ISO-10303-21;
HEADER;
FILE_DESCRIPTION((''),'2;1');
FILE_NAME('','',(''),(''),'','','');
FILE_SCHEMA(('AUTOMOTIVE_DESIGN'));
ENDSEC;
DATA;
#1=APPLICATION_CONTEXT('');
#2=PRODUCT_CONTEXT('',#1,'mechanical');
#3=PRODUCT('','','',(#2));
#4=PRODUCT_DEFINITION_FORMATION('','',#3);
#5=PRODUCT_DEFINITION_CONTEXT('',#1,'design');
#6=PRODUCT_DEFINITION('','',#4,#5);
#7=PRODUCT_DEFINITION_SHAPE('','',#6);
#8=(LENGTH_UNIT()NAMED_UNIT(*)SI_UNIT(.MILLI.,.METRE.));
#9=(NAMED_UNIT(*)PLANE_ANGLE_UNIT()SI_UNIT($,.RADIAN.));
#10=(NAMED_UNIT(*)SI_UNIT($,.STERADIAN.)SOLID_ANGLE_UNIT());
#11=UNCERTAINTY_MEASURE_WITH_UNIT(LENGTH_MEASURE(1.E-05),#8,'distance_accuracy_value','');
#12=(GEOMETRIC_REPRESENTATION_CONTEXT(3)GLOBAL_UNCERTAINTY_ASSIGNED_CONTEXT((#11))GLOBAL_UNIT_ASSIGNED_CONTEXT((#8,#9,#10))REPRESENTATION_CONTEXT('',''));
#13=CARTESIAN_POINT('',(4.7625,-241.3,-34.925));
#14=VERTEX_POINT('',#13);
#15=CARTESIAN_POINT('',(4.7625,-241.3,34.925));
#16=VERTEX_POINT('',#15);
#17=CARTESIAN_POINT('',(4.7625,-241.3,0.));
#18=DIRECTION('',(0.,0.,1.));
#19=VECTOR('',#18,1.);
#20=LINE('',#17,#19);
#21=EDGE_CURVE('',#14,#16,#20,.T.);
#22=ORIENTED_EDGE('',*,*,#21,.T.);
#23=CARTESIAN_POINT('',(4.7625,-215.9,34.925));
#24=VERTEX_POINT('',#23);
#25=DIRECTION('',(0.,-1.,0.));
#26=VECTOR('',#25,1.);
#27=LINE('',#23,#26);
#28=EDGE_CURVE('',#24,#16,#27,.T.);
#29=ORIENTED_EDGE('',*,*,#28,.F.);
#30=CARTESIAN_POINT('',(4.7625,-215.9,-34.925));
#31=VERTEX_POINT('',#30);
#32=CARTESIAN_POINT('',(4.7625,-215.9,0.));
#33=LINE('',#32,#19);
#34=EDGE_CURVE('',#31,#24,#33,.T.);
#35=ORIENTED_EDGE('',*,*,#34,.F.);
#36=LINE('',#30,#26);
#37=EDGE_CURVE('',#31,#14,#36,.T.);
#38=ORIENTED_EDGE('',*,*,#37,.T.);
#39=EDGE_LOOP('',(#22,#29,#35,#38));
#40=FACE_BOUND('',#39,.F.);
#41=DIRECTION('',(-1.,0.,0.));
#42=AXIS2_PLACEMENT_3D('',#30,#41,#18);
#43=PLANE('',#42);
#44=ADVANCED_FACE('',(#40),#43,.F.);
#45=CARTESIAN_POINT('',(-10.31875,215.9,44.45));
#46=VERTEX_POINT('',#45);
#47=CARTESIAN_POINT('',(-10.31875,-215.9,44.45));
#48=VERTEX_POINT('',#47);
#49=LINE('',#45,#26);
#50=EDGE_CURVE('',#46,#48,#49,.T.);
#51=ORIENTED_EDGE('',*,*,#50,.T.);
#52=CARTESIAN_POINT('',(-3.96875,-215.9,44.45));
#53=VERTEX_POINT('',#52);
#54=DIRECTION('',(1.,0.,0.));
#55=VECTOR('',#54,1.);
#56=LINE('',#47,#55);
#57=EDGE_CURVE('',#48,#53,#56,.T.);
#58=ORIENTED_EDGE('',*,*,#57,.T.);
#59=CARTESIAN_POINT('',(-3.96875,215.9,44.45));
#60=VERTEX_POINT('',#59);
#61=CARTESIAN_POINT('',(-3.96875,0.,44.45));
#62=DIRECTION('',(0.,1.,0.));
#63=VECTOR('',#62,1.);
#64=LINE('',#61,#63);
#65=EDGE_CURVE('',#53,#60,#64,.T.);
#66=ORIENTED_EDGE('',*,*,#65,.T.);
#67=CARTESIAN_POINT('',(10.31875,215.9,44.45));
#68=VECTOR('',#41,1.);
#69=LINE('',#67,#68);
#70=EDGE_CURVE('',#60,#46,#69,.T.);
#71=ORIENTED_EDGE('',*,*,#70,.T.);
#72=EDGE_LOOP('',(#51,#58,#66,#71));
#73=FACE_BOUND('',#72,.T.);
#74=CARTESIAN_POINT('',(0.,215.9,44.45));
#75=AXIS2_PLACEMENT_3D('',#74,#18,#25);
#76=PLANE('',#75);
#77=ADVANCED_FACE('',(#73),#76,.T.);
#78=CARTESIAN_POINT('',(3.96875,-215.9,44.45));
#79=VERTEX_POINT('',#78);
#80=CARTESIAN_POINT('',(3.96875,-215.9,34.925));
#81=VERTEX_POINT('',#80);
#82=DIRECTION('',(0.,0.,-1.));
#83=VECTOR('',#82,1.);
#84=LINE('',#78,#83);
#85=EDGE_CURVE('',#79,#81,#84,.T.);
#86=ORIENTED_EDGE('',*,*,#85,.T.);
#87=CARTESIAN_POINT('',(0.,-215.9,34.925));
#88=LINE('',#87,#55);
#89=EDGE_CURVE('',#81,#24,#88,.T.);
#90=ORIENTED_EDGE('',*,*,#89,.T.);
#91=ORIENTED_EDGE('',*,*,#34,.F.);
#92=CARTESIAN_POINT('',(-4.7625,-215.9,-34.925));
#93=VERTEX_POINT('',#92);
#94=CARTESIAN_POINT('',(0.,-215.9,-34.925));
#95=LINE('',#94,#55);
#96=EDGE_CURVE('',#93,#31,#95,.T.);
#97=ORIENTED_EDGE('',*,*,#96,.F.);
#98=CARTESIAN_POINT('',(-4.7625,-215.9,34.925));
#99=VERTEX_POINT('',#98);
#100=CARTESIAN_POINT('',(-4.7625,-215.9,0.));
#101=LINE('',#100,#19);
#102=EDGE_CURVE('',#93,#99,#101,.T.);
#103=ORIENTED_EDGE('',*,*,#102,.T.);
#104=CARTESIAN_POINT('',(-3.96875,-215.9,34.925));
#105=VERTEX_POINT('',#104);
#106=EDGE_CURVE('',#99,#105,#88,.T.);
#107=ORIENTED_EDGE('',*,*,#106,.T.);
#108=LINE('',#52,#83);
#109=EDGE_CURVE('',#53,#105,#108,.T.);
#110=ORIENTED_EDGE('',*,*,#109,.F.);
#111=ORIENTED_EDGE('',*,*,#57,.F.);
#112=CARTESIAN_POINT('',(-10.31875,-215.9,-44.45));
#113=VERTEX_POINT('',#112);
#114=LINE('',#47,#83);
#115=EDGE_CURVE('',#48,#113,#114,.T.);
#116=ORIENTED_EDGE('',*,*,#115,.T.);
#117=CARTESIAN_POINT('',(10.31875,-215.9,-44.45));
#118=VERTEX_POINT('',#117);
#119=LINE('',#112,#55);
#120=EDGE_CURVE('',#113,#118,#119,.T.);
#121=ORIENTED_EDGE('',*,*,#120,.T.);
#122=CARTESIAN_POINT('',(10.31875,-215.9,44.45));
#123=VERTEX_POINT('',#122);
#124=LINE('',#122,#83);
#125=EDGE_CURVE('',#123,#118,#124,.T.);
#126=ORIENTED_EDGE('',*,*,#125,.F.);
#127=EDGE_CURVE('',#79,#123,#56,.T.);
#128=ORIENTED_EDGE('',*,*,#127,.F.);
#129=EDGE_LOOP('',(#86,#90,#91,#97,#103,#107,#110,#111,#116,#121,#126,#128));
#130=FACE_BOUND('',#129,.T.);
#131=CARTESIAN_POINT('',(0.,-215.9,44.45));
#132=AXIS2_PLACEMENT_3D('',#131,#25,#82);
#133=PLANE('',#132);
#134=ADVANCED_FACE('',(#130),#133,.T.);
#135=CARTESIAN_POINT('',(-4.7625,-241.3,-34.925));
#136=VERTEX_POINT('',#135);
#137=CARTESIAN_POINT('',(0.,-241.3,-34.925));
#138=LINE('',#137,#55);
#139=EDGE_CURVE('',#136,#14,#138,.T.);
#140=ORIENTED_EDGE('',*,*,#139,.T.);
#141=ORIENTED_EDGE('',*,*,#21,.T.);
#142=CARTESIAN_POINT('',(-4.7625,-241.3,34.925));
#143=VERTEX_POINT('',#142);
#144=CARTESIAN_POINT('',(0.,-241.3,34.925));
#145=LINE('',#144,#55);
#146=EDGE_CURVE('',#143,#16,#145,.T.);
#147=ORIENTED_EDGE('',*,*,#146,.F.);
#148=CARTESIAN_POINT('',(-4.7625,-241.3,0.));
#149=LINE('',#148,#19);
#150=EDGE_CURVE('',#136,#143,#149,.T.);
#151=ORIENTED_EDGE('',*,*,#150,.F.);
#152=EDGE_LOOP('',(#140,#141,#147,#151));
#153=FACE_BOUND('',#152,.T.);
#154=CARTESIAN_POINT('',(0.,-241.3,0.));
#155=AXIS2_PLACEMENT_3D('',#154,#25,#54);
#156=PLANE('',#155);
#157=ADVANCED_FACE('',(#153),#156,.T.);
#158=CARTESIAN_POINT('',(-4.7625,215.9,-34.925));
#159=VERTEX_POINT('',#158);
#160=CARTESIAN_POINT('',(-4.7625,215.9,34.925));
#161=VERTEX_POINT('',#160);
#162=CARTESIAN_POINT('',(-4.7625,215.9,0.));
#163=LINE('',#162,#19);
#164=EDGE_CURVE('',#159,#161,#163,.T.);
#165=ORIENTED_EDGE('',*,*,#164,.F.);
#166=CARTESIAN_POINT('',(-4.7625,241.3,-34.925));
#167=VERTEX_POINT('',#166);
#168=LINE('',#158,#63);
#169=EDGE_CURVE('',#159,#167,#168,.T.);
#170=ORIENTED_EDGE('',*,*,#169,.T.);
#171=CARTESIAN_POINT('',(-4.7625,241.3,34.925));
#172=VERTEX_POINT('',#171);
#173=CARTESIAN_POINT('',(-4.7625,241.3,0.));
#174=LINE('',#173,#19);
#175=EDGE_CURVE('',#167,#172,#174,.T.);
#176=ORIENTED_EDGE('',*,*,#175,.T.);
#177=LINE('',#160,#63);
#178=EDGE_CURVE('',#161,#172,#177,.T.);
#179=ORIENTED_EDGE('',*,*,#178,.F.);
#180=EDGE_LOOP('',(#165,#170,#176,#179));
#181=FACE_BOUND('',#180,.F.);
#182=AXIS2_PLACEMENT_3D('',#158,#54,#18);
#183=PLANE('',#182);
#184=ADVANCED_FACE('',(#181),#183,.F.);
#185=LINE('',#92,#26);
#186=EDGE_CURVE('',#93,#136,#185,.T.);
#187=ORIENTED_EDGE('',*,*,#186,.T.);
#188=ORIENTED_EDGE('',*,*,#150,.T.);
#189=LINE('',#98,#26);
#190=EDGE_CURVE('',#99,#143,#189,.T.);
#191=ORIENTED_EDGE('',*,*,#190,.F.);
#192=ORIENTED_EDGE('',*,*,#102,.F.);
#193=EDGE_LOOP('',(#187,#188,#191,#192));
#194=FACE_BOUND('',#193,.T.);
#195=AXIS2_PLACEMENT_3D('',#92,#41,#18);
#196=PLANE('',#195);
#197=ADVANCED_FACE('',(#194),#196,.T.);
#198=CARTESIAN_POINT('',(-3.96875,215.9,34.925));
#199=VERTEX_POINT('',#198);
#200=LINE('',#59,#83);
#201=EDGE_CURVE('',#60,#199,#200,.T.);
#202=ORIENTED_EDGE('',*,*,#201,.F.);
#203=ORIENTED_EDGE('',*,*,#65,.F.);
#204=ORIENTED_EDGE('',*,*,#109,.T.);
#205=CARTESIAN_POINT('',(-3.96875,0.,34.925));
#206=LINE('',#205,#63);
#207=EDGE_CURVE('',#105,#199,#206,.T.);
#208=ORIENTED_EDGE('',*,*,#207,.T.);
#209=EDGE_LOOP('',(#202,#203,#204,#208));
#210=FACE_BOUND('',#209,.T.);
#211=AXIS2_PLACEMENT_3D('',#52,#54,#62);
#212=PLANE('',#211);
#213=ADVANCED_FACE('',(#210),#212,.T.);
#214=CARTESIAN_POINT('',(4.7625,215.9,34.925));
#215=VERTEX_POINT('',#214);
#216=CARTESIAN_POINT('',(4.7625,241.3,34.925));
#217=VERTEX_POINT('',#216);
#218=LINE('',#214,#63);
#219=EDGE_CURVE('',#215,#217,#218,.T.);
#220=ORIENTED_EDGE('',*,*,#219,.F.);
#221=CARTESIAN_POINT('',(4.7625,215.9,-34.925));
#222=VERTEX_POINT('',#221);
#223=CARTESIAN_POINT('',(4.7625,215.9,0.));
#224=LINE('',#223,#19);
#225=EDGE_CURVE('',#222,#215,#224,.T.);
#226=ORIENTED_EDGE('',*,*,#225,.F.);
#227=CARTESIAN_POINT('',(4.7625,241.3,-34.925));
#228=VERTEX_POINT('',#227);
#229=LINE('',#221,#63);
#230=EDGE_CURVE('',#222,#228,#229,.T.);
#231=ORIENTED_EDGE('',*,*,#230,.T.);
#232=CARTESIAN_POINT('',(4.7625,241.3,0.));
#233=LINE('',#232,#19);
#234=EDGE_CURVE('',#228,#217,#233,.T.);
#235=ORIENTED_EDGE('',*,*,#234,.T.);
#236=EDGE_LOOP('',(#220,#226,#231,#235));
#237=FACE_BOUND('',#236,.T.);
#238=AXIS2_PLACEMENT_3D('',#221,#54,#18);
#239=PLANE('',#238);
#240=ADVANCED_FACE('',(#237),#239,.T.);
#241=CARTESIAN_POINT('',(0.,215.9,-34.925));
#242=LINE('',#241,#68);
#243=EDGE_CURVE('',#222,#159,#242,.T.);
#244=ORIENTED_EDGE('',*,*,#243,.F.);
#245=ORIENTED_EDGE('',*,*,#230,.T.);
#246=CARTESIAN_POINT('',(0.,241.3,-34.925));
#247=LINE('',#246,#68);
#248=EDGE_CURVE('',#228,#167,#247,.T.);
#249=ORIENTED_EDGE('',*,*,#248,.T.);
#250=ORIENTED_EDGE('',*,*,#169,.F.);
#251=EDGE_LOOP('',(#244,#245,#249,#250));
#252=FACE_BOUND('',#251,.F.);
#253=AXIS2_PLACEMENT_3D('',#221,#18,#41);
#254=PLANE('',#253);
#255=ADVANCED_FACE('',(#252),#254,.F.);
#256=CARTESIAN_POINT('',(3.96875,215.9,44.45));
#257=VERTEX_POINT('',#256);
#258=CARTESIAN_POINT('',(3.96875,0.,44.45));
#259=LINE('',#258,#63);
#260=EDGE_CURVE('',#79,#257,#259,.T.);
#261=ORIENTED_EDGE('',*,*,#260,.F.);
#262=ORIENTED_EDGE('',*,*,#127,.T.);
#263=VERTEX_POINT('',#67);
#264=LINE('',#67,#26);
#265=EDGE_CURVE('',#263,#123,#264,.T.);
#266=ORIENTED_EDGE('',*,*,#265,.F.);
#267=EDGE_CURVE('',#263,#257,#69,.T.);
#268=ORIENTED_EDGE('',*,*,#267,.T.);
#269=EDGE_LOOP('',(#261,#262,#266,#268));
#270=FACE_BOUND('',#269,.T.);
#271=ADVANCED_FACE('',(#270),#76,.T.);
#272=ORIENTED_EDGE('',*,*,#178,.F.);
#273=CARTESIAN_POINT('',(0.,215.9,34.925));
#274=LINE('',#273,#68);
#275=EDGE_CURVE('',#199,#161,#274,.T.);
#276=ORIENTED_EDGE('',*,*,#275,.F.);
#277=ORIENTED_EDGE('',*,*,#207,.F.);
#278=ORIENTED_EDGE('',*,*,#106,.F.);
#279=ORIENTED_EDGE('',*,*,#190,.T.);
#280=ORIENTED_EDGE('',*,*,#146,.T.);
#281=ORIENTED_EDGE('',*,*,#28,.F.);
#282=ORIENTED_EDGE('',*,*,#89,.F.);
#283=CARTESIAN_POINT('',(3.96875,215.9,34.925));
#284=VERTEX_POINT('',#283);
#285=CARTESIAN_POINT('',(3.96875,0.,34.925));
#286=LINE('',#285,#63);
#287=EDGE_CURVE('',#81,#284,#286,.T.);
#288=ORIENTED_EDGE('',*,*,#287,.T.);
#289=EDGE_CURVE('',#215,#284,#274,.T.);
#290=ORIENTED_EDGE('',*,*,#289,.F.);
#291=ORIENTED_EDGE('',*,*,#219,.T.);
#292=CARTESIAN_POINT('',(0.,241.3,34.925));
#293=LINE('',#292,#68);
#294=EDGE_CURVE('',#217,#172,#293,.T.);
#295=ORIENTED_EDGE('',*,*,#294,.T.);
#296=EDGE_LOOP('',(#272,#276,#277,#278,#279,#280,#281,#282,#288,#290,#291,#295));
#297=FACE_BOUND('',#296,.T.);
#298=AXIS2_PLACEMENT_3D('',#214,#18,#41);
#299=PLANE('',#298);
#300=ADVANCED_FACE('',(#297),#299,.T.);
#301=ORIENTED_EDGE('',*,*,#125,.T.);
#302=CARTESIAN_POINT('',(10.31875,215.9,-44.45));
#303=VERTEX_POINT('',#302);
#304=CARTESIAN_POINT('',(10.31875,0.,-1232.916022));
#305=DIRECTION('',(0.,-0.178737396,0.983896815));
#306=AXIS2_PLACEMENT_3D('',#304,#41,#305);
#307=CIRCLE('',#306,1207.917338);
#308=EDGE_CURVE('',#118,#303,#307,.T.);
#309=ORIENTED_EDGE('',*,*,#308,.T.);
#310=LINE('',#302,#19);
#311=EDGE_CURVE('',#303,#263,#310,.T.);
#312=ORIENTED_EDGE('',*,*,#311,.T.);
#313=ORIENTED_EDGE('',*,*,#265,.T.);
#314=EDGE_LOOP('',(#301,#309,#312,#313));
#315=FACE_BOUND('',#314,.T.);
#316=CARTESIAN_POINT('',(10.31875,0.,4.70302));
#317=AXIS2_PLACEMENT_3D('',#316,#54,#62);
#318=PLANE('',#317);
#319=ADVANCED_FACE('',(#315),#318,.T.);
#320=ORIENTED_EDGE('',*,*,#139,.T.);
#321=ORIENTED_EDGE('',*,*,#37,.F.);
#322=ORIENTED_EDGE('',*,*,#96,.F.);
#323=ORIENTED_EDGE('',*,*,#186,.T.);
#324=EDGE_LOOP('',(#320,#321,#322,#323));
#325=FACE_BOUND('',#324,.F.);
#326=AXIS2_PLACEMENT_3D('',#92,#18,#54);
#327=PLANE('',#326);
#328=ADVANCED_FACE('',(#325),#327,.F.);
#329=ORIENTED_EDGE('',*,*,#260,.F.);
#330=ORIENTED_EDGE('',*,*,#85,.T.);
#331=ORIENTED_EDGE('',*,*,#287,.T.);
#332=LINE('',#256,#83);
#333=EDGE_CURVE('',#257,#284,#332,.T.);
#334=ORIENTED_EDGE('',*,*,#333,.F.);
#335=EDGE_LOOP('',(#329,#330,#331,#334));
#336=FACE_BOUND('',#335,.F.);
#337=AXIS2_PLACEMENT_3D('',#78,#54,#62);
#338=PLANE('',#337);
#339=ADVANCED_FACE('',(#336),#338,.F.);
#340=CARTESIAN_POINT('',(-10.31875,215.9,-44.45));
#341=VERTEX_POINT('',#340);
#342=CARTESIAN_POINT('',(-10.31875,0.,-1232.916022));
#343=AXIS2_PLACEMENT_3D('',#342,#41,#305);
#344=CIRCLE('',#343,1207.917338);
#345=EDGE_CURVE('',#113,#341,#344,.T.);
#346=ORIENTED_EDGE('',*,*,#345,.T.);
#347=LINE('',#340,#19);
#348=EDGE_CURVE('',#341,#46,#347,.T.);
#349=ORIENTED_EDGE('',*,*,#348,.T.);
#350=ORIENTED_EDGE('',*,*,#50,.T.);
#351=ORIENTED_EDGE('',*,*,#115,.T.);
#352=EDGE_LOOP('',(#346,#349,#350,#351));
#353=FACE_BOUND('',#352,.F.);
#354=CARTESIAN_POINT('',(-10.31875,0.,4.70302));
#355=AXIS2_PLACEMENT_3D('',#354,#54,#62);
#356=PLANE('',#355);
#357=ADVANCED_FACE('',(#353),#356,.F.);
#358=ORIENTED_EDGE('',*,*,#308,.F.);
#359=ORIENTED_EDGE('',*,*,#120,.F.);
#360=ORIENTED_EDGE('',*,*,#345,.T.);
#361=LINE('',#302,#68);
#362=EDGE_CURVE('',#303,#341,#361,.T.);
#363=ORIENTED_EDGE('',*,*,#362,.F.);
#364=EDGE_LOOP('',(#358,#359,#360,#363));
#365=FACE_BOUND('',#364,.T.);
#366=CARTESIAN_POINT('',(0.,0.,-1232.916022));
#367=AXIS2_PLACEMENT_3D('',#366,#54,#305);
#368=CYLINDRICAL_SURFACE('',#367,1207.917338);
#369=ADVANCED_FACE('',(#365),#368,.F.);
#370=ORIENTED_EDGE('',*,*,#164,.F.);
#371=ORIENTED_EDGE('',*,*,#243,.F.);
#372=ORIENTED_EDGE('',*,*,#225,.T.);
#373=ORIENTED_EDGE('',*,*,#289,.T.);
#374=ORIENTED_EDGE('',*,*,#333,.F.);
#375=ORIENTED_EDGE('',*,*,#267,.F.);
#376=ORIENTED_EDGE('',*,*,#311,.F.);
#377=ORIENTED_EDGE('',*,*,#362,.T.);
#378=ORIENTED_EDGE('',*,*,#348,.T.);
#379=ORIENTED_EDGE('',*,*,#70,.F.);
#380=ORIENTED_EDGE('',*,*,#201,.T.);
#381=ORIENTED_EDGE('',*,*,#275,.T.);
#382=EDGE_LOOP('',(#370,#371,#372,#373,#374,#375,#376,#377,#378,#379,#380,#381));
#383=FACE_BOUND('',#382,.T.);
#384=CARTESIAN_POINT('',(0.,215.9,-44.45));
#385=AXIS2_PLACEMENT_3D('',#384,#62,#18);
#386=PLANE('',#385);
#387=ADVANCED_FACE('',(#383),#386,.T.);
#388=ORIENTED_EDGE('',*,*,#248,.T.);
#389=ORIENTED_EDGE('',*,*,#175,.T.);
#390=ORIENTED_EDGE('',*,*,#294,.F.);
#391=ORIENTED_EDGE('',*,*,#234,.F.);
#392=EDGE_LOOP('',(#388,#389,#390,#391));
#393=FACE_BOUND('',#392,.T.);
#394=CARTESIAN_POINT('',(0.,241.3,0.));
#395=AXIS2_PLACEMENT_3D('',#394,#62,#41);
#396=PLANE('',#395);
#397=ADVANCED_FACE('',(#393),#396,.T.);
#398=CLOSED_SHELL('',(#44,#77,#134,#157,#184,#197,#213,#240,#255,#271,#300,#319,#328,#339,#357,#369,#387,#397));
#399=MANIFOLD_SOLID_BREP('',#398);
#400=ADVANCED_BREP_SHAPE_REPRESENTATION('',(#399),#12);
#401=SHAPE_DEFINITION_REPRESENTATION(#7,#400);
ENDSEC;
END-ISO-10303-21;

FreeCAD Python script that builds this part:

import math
import FreeCAD as App
import Part
import Sketcher
Q = App.Units.Quantity


def add_polygon(sketch, points):
    """Adds a closed chain of lines whose ends are joined by coincident constraints."""
    first, n = sketch.GeometryCount, len(points)
    for a, b in zip(points, points[1:] + points[:1]):
        sketch.addGeometry(Part.LineSegment(App.Vector(*a, 0), App.Vector(*b, 0)), False)
    for i in range(n):
        sketch.addConstraint(Sketcher.Constraint("Coincident", first + i, 2, first + (i + 1) % n, 1))

doc = App.newDocument("Part")
body = doc.addObject("PartDesign::Body", "Body")

# Sketch on YZ plane
sketch1 = body.newObject("Sketcher::SketchObject", "Sketch")
sketch1.AttachmentSupport = (doc.getObject("YZ_Plane"), [""])
sketch1.MapMode = "FlatFace"
sketch1.addGeometry(Part.LineSegment(App.Vector(216, 44, 0), App.Vector(-216, 44, 0)), False)
sketch1.addGeometry(Part.LineSegment(App.Vector(-216, 44, 0), App.Vector(-216, -44, 0)), False)
sketch1.addGeometry(Part.ArcOfCircle(Part.Circle(App.Vector(0, -1233, 0), App.Vector(0, 0, 1), 1208), math.radians(80), math.radians(100)), False)
sketch1.addGeometry(Part.LineSegment(App.Vector(216, -44, 0), App.Vector(216, 44, 0)), False)
sketch1.addConstraint(Sketcher.Constraint("Coincident", 0, 2, 1, 1))
sketch1.addConstraint(Sketcher.Constraint("Coincident", 1, 2, 2, 2))
sketch1.addConstraint(Sketcher.Constraint("Coincident", 2, 1, 3, 1))
sketch1.addConstraint(Sketcher.Constraint("Coincident", 3, 2, 0, 1))
sketch1.addConstraint(Sketcher.Constraint("Horizontal", 0))
sketch1.addConstraint(Sketcher.Constraint("Vertical", 1))
sketch1.addConstraint(Sketcher.Constraint("Vertical", 3))
sketch1.addConstraint(Sketcher.Constraint("Symmetric", 1, 2, 3, 2, -1, 1))
sketch1.addConstraint(Sketcher.Constraint("PointOnObject", 2, 3, -2))
sketch1.addConstraint(Sketcher.Constraint("DistanceX", 0, 2, 0, 1, Q("17 in")))
sketch1.addConstraint(Sketcher.Constraint("DistanceY", 1, 2, 1, 1, Q("3.5 in")))
sketch1.addConstraint(Sketcher.Constraint("Radius", 2, Q("1207.917338 mm")))
pad1 = body.newObject("PartDesign::Pad", "Pad")
pad1.Profile = sketch1
pad1.Length = Q("0.8125 in")
pad1.Midplane = True

# Sketch on XZ plane
sketch2 = body.newObject("Sketcher::SketchObject", "Sketch001")
sketch2.AttachmentSupport = (doc.getObject("XZ_Plane"), [""])
sketch2.MapMode = "FlatFace"
sketch2.AttachmentOffset = App.Placement(App.Vector(0, 0, 8.5 * 25.4), App.Rotation())
add_polygon(sketch2, [(-5, 35), (-5, -35), (5, -35), (5, 35)])  # lines 0-3
sketch2.addConstraint(Sketcher.Constraint("Vertical", 0))
sketch2.addConstraint(Sketcher.Constraint("Horizontal", 1))
sketch2.addConstraint(Sketcher.Constraint("Vertical", 2))
sketch2.addConstraint(Sketcher.Constraint("Horizontal", 3))
sketch2.addConstraint(Sketcher.Constraint("Symmetric", 0, 2, 2, 2, -1, 1))
sketch2.addConstraint(Sketcher.Constraint("DistanceY", 0, 2, 0, 1, Q("2.75 in")))
sketch2.addConstraint(Sketcher.Constraint("DistanceX", 1, 1, 1, 2, Q("0.375 in")))
pad2 = body.newObject("PartDesign::Pad", "Pad001")
pad2.Profile = sketch2
pad2.Length = Q("1 in")

# Sketch on XZ plane
sketch3 = body.newObject("Sketcher::SketchObject", "Sketch002")
sketch3.AttachmentSupport = (doc.getObject("XZ_Plane"), [""])
sketch3.MapMode = "FlatFace"
sketch3.AttachmentOffset = App.Placement(App.Vector(0, 0, -8.5 * 25.4), App.Rotation())
add_polygon(sketch3, [(5, 35), (5, -35), (-5, -35), (-5, 35)])  # lines 0-3
sketch3.addConstraint(Sketcher.Constraint("Vertical", 0))
sketch3.addConstraint(Sketcher.Constraint("Horizontal", 1))
sketch3.addConstraint(Sketcher.Constraint("Vertical", 2))
sketch3.addConstraint(Sketcher.Constraint("Horizontal", 3))
sketch3.addConstraint(Sketcher.Constraint("Symmetric", 0, 2, 2, 2, -1, 1))
sketch3.addConstraint(Sketcher.Constraint("DistanceY", 0, 2, 0, 1, Q("2.75 in")))
sketch3.addConstraint(Sketcher.Constraint("DistanceX", 1, 2, 1, 1, Q("0.375 in")))
pad3 = body.newObject("PartDesign::Pad", "Pad002")
pad3.Profile = sketch3
pad3.Length = Q("1 in")
pad3.Reversed = True

# Sketch on XY plane
sketch4 = body.newObject("Sketcher::SketchObject", "Sketch003")
sketch4.AttachmentSupport = (doc.getObject("XY_Plane"), [""])
sketch4.MapMode = "FlatFace"
sketch4.AttachmentOffset = App.Placement(App.Vector(0, 0, 1.75 * 25.4), App.Rotation())
add_polygon(sketch4, [(-4, 216), (-4, -216), (4, -216), (4, 216)])  # lines 0-3
sketch4.addConstraint(Sketcher.Constraint("Vertical", 0))
sketch4.addConstraint(Sketcher.Constraint("Horizontal", 1))
sketch4.addConstraint(Sketcher.Constraint("Vertical", 2))
sketch4.addConstraint(Sketcher.Constraint("Horizontal", 3))
sketch4.addConstraint(Sketcher.Constraint("Symmetric", 0, 2, 2, 2, -1, 1))
sketch4.addConstraint(Sketcher.Constraint("DistanceY", 0, 2, 0, 1, Q("17 in")))
sketch4.addConstraint(Sketcher.Constraint("DistanceX", 1, 1, 1, 2, Q("0.3125 in")))
pocket1 = body.newObject("PartDesign::Pocket", "Pocket")
pocket1.Profile = sketch4
pocket1.Length = Q("0.375 in")

doc.recompute()
